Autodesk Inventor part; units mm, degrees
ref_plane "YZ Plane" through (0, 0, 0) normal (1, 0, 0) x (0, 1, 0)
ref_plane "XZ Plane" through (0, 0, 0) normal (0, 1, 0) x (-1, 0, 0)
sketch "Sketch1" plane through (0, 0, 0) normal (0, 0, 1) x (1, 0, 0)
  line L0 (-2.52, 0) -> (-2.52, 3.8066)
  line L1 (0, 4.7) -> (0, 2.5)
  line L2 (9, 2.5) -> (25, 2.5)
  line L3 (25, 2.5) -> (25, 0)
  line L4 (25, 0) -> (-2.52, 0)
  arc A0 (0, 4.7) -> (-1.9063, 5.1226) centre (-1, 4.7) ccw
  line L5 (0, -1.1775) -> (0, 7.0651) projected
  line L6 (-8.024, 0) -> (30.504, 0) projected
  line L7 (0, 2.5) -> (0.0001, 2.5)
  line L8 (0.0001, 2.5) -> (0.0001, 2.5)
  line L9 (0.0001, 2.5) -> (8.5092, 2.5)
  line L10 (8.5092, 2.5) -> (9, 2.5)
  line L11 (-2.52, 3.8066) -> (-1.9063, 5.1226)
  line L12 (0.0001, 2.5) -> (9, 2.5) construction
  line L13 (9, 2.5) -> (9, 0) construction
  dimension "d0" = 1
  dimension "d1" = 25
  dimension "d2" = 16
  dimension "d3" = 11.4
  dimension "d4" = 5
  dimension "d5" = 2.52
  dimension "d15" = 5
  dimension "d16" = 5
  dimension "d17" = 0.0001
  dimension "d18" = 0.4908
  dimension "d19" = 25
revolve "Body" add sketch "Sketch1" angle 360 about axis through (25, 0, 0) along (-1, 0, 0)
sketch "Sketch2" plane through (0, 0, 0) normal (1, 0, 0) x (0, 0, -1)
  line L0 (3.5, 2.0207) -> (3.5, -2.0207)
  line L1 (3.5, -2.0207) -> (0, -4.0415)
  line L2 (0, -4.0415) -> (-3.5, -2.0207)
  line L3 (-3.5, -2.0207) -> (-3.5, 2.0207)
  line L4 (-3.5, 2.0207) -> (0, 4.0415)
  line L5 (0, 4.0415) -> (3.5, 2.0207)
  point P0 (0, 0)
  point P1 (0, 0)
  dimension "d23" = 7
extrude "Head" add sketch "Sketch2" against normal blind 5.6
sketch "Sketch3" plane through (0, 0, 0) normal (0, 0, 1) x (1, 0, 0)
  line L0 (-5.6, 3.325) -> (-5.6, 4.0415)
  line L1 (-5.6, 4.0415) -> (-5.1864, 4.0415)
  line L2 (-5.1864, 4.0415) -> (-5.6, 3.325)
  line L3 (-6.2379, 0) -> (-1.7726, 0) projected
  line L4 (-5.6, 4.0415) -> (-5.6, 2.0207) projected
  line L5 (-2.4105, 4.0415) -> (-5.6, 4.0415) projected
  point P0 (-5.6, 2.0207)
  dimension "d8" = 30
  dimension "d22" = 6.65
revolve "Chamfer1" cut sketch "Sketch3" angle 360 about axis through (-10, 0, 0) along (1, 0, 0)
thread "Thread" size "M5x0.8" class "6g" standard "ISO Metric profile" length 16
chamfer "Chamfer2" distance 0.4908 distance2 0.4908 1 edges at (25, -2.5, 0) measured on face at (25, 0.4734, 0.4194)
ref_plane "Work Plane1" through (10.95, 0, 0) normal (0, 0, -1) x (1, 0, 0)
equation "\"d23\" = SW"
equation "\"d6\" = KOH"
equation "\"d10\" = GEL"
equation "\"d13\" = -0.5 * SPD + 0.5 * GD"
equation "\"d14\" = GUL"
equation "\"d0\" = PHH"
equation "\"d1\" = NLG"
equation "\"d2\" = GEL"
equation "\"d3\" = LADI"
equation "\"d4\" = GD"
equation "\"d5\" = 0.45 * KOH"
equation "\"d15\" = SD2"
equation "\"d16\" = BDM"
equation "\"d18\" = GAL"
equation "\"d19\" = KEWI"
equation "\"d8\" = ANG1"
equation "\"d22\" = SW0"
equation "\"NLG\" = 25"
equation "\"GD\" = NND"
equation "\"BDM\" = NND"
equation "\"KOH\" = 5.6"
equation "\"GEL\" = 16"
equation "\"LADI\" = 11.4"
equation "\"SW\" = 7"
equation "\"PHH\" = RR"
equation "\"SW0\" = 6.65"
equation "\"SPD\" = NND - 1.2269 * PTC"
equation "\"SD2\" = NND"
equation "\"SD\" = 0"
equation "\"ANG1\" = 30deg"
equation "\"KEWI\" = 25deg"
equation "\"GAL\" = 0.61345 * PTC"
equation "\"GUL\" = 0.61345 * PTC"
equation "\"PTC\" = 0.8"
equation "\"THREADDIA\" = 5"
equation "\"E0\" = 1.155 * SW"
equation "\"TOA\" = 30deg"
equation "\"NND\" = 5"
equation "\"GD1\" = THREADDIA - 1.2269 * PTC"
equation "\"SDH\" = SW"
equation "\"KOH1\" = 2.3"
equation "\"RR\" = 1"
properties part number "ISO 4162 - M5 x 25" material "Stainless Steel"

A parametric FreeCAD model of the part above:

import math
import FreeCAD as App
import Part
import Sketcher

V = App.Vector
Q = App.Units.Quantity


def edges_at(feature, points):
    """Names of the edges that pass closest to the given points."""
    edges = feature.Shape.Edges
    near = lambda p: min(range(len(edges)), key=lambda i: edges[i].distToShape(Part.Vertex(*p))[0])
    return sorted({f"Edge{near(p) + 1}" for p in points})


def add_polygon(sketch, points):
    """Adds a closed chain of lines whose ends are joined by coincident constraints."""
    first, n = sketch.GeometryCount, len(points)
    for a, b in zip(points, points[1:] + points[:1]):
        sketch.addGeometry(Part.LineSegment(App.Vector(*a, 0), App.Vector(*b, 0)), False)
    for i in range(n):
        sketch.addConstraint(Sketcher.Constraint("Coincident", first + i, 2, first + (i + 1) % n, 1))

doc = App.newDocument("Part")
body = doc.addObject("PartDesign::Body", "Body")

sketch1 = doc.addObject("Sketcher::SketchObject", "Sketch")
body.addObject(sketch1)
sketch1.AttachmentSupport = (doc.XY_Plane, [""])
sketch1.MapMode = "FlatFace"
sketch1.addGeometry([
    Part.LineSegment(V(-2.5, 3.8, 0), V(-2.5, 0, 0)),
    Part.LineSegment(V(-2.5, 0, 0), V(25, 0, 0)),
    Part.LineSegment(V(25, 0, 0), V(25, 2.5, 0)),
    Part.LineSegment(V(25, 2.5, 0), V(0, 2.5, 0)),
    Part.LineSegment(V(0, 2.5, 0), V(0, 4.7, 0)),
    Part.ArcOfCircle(Part.Circle(V(-1, 4.7, 0), V(0, 0, 1), 1), math.radians(0), math.radians(155)),
    Part.LineSegment(V(-1.9, 5.1, 0), V(-2.5, 3.8, 0)),
], False)
sketch1.addConstraint([
    Sketcher.Constraint("Coincident", 0, 2, 1, 1),
    Sketcher.Constraint("Coincident", 1, 2, 2, 1),
    Sketcher.Constraint("Coincident", 2, 2, 3, 1),
    Sketcher.Constraint("Coincident", 3, 2, 4, 1),
    Sketcher.Constraint("Tangent", 4, 2, 5, 1),
    Sketcher.Constraint("Tangent", 5, 2, 6, 1),
    Sketcher.Constraint("Coincident", 6, 2, 0, 1),
    Sketcher.Constraint("Vertical", 0),
    Sketcher.Constraint("Horizontal", 1),
    Sketcher.Constraint("Vertical", 2),
    Sketcher.Constraint("Horizontal", 3),
    Sketcher.Constraint("Vertical", 4),
    Sketcher.Constraint("PointOnObject", 0, 2, -1),
    Sketcher.Constraint("PointOnObject", 3, 2, -2),
    Sketcher.Constraint("Radius", 5, Q("1 mm")),
    Sketcher.Constraint("DistanceX", 3, 2, 3, 1, Q("25 mm")),
    Sketcher.Constraint("DistanceX", 0, 2, -1, 1, Q("2.52 mm")),
    Sketcher.Constraint("DistanceY", 2, 1, 2, 2, Q("2.5 mm")),
    Sketcher.Constraint("DistanceY", 4, 1, 4, 2, Q("2.2 mm")),
    Sketcher.Constraint("Distance", 6, Q("1.452 mm")),
])
revolution = doc.addObject("PartDesign::Revolution", "Revolution")
body.addObject(revolution)
revolution.Profile = sketch1
revolution.ReferenceAxis = (sketch1, ["H_Axis"])
revolution.Angle = 360

sketch2 = doc.addObject("Sketcher::SketchObject", "Sketch001")
body.addObject(sketch2)
sketch2.AttachmentSupport = (doc.YZ_Plane, [""])
sketch2.MapMode = "FlatFace"
add_polygon(sketch2, [(-2, -3.5), (2, -3.5), (4, 0), (2, 3.5), (-2, 3.5), (-4, 0)])
sketch2.addConstraint([
    Sketcher.Constraint("Horizontal", 0),
    Sketcher.Constraint("Horizontal", 3),
    Sketcher.Constraint("Symmetric", 0, 2, 3, 2, -1, 1),
    Sketcher.Constraint("Symmetric", 1, 2, 4, 2, -1, 1),
    Sketcher.Constraint("PointOnObject", 1, 2, -1),
    Sketcher.Constraint("Parallel", 2, 5),
    Sketcher.Constraint("Vertical", 0, 2, 2, 2),
    Sketcher.Constraint("DistanceY", 0, 2, 2, 2, Q("7 mm")),
    Sketcher.Constraint("Angle", 1, Q("59.999 deg")),
    Sketcher.Constraint("DistanceX", 0, 1, 0, 2, Q("4.0414 mm")),
])
pad1 = doc.addObject("PartDesign::Pad", "Pad")
body.addObject(pad1)
pad1.Profile = sketch2
pad1.Length = 5.6
pad1.Reversed = True

sketch3 = doc.addObject("Sketcher::SketchObject", "Sketch002")
body.addObject(sketch3)
sketch3.AttachmentSupport = (doc.XY_Plane, [""])
sketch3.MapMode = "FlatFace"
add_polygon(sketch3, [(-5.6, 4.04), (-5.6, 3.33), (-5.19, 4.04)])
sketch3.addConstraint([
    Sketcher.Constraint("Vertical", 0),
    Sketcher.Constraint("Horizontal", 2),
    Sketcher.Constraint("DistanceX", 0, 2, -1, 1, Q("5.6 mm")),
    Sketcher.Constraint("DistanceX", 2, 2, 2, 1, Q("0.4136 mm")),
    Sketcher.Constraint("DistanceY", 0, 2, 0, 1, Q("0.7165 mm")),
    Sketcher.Constraint("DistanceY", -1, 1, 0, 2, Q("3.325 mm")),
])
groove = doc.addObject("PartDesign::Groove", "Groove")
body.addObject(groove)
groove.Profile = sketch3
groove.ReferenceAxis = (sketch3, ["H_Axis"])
groove.Angle = 360
doc.recompute()

chamfer = doc.addObject("PartDesign::Chamfer", "Chamfer")
body.addObject(chamfer)
chamfer.Base = (groove, edges_at(groove, [(25, -2.5, 0)]))
chamfer.ChamferType = "Two distances"
chamfer.Size = 0.4908
chamfer.Size2 = 0.4908

doc.recompute()
